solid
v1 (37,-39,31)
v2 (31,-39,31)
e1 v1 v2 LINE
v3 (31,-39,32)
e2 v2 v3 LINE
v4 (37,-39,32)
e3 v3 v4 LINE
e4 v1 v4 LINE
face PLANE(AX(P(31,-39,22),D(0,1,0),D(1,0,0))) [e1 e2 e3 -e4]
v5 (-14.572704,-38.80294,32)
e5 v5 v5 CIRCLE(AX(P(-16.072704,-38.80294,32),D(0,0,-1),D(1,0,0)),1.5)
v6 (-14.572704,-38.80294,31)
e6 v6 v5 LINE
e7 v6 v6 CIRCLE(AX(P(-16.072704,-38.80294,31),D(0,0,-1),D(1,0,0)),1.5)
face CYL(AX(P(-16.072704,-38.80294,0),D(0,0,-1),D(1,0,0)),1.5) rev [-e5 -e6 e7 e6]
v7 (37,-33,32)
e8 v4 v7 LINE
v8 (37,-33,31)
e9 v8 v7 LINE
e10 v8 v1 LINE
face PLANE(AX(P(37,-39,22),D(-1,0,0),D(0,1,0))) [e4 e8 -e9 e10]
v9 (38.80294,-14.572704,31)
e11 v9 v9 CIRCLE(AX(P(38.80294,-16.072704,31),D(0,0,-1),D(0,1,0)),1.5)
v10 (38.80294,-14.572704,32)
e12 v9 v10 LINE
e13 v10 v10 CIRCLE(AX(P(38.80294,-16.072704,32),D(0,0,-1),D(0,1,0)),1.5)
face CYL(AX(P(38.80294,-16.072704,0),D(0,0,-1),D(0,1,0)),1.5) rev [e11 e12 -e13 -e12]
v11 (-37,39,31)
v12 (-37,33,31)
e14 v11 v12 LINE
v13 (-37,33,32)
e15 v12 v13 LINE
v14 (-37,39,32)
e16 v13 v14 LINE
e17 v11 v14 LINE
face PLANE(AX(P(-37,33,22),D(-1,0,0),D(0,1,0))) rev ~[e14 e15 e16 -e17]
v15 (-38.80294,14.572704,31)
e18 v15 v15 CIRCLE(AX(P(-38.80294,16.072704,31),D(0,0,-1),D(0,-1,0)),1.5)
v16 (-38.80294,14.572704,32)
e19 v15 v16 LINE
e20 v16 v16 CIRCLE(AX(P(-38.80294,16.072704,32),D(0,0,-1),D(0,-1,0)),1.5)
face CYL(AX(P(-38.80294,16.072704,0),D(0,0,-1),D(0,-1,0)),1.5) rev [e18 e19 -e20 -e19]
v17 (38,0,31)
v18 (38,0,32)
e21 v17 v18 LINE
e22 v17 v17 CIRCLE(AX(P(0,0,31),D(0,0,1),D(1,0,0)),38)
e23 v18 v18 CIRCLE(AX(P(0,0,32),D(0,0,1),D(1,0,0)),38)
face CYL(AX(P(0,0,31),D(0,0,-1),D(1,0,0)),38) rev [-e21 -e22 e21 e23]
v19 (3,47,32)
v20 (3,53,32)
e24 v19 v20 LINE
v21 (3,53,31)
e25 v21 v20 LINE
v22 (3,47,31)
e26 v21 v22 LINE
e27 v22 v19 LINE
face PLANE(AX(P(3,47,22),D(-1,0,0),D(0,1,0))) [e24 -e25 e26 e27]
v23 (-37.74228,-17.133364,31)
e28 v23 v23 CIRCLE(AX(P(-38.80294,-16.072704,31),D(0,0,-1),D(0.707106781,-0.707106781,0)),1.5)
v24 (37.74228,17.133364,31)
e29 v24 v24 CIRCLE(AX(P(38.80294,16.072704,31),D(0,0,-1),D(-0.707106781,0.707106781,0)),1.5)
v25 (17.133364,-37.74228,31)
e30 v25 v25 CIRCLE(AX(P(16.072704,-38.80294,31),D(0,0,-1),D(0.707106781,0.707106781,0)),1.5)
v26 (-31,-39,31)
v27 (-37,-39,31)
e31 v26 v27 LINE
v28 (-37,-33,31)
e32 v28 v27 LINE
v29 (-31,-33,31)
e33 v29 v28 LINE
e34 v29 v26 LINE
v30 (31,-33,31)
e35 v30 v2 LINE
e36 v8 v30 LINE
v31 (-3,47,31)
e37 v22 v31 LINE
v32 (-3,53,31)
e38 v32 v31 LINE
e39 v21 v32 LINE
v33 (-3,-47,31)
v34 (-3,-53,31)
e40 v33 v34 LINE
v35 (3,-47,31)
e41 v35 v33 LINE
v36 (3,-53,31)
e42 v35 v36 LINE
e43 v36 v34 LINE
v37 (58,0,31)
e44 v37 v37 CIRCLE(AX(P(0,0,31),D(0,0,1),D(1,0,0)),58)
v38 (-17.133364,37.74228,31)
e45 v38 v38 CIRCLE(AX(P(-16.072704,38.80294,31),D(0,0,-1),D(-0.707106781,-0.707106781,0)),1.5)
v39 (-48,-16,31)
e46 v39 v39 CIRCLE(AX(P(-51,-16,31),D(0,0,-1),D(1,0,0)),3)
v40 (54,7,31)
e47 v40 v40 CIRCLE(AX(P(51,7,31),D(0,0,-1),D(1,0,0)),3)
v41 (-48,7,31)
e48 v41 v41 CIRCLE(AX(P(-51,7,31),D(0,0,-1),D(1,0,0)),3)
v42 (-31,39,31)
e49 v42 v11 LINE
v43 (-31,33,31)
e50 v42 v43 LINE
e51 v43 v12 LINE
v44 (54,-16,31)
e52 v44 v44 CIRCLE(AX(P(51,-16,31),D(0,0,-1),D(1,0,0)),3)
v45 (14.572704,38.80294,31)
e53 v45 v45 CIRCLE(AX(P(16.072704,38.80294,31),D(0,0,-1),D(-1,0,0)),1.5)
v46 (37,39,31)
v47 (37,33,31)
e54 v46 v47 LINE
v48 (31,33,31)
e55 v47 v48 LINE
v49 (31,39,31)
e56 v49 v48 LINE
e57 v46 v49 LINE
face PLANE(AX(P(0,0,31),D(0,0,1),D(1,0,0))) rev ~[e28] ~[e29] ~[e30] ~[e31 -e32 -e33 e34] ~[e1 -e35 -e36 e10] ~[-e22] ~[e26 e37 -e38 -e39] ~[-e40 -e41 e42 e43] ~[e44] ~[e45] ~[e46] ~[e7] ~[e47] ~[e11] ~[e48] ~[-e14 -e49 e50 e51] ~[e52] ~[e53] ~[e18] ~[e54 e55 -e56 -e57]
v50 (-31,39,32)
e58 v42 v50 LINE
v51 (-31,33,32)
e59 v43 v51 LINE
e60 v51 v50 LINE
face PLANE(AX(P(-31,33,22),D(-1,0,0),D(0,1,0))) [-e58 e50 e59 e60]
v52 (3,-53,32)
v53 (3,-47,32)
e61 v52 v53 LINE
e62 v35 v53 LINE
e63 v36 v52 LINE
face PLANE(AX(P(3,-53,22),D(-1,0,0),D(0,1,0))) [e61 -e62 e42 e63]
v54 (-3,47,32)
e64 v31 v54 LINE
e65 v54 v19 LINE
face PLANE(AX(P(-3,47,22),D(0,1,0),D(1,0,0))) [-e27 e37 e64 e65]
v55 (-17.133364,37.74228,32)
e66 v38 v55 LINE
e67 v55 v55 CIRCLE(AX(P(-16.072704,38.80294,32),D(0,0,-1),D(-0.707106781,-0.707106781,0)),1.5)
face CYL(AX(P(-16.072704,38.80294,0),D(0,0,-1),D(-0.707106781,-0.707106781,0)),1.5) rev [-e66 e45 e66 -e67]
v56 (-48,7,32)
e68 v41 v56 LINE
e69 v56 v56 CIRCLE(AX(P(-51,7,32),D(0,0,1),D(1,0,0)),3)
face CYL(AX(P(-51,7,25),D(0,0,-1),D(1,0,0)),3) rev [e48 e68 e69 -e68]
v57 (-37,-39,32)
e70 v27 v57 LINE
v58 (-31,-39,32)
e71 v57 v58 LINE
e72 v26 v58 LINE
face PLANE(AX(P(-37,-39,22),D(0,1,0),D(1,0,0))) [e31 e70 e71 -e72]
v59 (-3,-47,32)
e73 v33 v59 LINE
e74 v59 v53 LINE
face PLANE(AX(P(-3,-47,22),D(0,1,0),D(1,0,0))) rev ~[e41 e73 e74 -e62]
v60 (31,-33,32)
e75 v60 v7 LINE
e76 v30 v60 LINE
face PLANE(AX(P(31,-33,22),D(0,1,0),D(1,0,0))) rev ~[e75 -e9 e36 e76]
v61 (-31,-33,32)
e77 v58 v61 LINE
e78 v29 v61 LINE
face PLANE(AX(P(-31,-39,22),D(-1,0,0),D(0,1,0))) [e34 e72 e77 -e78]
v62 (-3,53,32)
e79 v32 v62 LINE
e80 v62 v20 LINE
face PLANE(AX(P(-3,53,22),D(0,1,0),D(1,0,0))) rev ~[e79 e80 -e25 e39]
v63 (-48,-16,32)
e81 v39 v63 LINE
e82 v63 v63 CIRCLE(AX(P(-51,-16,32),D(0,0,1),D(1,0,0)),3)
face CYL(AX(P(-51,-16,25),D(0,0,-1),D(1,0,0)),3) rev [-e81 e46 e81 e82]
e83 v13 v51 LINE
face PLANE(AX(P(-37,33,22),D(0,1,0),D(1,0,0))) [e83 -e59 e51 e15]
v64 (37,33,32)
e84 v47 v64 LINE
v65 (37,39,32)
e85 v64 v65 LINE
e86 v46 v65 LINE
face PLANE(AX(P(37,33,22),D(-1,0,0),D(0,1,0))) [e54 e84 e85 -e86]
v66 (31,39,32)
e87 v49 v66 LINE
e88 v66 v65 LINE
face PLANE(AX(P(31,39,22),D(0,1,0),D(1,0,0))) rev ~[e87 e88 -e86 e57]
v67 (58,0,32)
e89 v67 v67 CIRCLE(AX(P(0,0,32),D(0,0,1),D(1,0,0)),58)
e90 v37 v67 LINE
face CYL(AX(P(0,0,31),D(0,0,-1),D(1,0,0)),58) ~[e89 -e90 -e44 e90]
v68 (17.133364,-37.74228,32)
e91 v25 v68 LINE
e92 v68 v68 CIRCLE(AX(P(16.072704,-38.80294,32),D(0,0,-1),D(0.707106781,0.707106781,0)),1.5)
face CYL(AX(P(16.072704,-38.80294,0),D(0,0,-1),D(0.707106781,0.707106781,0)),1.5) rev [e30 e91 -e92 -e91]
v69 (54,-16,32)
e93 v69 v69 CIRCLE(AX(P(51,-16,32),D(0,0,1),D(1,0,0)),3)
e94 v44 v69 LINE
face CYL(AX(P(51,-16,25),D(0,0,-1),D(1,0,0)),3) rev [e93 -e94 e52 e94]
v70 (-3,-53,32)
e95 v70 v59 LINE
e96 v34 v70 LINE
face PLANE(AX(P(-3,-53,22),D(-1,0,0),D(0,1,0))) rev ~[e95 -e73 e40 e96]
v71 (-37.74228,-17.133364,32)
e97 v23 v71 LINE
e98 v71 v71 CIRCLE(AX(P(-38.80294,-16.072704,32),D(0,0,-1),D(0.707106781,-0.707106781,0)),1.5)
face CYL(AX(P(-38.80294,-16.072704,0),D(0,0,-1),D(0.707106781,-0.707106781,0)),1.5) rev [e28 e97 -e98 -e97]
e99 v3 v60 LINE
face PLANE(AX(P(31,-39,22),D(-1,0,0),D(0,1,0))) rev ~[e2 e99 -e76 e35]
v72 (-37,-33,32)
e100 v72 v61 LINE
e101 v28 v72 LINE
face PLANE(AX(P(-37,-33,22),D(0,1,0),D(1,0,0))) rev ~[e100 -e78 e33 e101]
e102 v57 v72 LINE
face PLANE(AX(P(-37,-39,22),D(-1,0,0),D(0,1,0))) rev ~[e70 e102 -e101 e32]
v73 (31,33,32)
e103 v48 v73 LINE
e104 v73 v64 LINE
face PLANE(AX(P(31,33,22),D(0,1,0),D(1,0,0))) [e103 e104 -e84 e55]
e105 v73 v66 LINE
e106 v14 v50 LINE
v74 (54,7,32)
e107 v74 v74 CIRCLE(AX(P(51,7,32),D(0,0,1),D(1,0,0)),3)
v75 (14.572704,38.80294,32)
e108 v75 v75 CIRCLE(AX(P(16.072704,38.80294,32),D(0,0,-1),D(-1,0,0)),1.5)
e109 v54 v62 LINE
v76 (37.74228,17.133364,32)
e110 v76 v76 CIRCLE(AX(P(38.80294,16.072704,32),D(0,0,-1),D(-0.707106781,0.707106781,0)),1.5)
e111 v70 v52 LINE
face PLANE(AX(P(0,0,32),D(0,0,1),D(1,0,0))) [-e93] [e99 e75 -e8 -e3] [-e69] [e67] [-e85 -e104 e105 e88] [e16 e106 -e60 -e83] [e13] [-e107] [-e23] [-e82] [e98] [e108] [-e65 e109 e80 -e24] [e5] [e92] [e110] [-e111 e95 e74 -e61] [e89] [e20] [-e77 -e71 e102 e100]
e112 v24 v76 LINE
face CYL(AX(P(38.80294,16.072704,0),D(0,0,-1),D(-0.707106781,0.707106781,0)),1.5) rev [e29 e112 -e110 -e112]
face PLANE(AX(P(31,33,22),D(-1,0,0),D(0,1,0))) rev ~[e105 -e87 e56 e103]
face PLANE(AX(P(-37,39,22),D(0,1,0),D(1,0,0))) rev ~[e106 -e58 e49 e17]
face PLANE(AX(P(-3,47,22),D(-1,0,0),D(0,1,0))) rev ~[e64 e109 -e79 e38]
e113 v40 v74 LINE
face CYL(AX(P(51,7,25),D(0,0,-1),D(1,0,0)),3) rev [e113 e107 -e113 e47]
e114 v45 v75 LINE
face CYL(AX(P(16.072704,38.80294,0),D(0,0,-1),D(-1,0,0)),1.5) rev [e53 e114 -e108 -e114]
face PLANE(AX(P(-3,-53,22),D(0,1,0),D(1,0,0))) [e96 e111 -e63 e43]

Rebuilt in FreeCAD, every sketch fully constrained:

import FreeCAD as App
import Part
import Sketcher
Q = App.Units.Quantity


def add_polygon(sketch, points):
    """Adds a closed chain of lines whose ends are joined by coincident constraints."""
    first, n = sketch.GeometryCount, len(points)
    for a, b in zip(points, points[1:] + points[:1]):
        sketch.addGeometry(Part.LineSegment(App.Vector(*a, 0), App.Vector(*b, 0)), False)
    for i in range(n):
        sketch.addConstraint(Sketcher.Constraint("Coincident", first + i, 2, first + (i + 1) % n, 1))

doc = App.newDocument("Part")
params = doc.addObject("Spreadsheet::Sheet", "Params")
for row, (alias, value) in enumerate([
    ("sketch1_diameter", "3 mm"),
    ("pad1_length", "100 mm"),
    ("sketch2_diameter", "3 mm"),
    ("pad2_length", "100 mm"),
    ("sketch3_diameter", "3 mm"),
    ("pad3_length", "100 mm"),
    ("sketch4_diameter", "3 mm"),
    ("pad4_length", "100 mm"),
    ("sketch5_diameter", "3 mm"),
    ("pad5_length", "100 mm"),
    ("sketch6_diameter", "3 mm"),
    ("pad6_length", "100 mm"),
    ("sketch7_diameter", "3 mm"),
    ("pad7_length", "100 mm"),
    ("sketch8_diameter", "3 mm"),
    ("pad8_length", "100 mm"),
    ("sketch9_width", "6 mm"),
    ("pad9_length", "10 mm"),
    ("sketch10_width", "6 mm"),
    ("pad10_length", "10 mm"),
    ("sketch11_width", "6 mm"),
    ("pad11_length", "10 mm"),
    ("sketch12_width", "6 mm"),
    ("pad12_length", "10 mm"),
    ("sketch13_width", "6 mm"),
    ("pad13_length", "10 mm"),
    ("sketch14_width", "6 mm"),
    ("pad14_length", "10 mm"),
    ("sketch15_diameter", "6 mm"),
    ("pad15_length", "7 mm"),
    ("sketch16_diameter", "6 mm"),
    ("pad16_length", "7 mm"),
    ("sketch17_diameter", "6 mm"),
    ("pad17_length", "7 mm"),
    ("sketch18_diameter", "6 mm"),
    ("pad18_length", "7 mm"),
    ("sketch19_diameter", "116 mm"),
    ("sketch19_diameter2", "76 mm"),
    ("pad19_length", "1 mm"),
], start=1):
    params.set(f"A{row}", alias)
    params.set(f"B{row}", "=" + value)
    params.setAlias(f"B{row}", alias)

body = doc.addObject("PartDesign::Body", "Body")

sketch1 = body.newObject("Sketcher::SketchObject", "Sketch")
sketch1.AttachmentSupport = (doc.getObject("XY_Plane"), [""])
sketch1.MapMode = "FlatFace"
sketch1.addGeometry(Part.Circle(App.Vector(38.8, -16.1, 0), App.Vector(0, 0, 1), 1.5), False)
sketch1.addConstraint([
    Sketcher.Constraint("Diameter", 0, Q("3 mm")),
    Sketcher.Constraint("DistanceX", -1, 1, 0, 3, Q("38.80294 mm")),
    Sketcher.Constraint("DistanceY", 0, 3, -1, 1, Q("16.072704 mm")),
])
sketch1.setExpression("Constraints[0]", "Params.sketch1_diameter")
pad1 = body.newObject("PartDesign::Pad", "Pad")
pad1.Profile = sketch1
pad1.setExpression("Length", "Params.pad1_length")
body2 = doc.addObject("PartDesign::Body", "Body001")

sketch2 = body2.newObject("Sketcher::SketchObject", "Sketch001")
sketch2.AttachmentSupport = (doc.getObject("XY_Plane001"), [""])
sketch2.MapMode = "FlatFace"
sketch2.addGeometry(Part.Circle(App.Vector(0, 0, 0), App.Vector(0, 0, 1), 1.5), False)
sketch2.addConstraint([
    Sketcher.Constraint("Coincident", 0, 3, -1, 1),
    Sketcher.Constraint("Diameter", 0, Q("3 mm")),
])
sketch2.setExpression("Constraints[1]", "Params.sketch2_diameter")
pad2 = body2.newObject("PartDesign::Pad", "Pad001")
pad2.Profile = sketch2
pad2.setExpression("Length", "Params.pad2_length")
body3 = doc.addObject("PartDesign::Body", "Body002")
doc.recompute()

body2.Placement = App.Placement(App.Vector(38.80294, 16.072704, 0), App.Rotation(App.Vector(0, 0, 1), 135))
boolean = body3.newObject("PartDesign::Boolean", "Boolean")
boolean.Type = "Fuse"
boolean.addObjects([body2])
body4 = doc.addObject("PartDesign::Body", "Body003")

sketch3 = body4.newObject("Sketcher::SketchObject", "Sketch002")
sketch3.AttachmentSupport = (doc.getObject("XY_Plane003"), [""])
sketch3.MapMode = "FlatFace"
sketch3.addGeometry(Part.Circle(App.Vector(16.1, 38.8, 0), App.Vector(0, 0, 1), 1.5), False)
sketch3.addConstraint([
    Sketcher.Constraint("Diameter", 0, Q("3 mm")),
    Sketcher.Constraint("DistanceY", -1, 1, 0, 3, Q("38.80294 mm")),
    Sketcher.Constraint("DistanceX", -1, 1, 0, 3, Q("16.072704 mm")),
])
sketch3.setExpression("Constraints[0]", "Params.sketch3_diameter")
pad3 = body4.newObject("PartDesign::Pad", "Pad002")
pad3.Profile = sketch3
pad3.setExpression("Length", "Params.pad3_length")
body5 = doc.addObject("PartDesign::Body", "Body004")

sketch4 = body5.newObject("Sketcher::SketchObject", "Sketch003")
sketch4.AttachmentSupport = (doc.getObject("XY_Plane004"), [""])
sketch4.MapMode = "FlatFace"
sketch4.addGeometry(Part.Circle(App.Vector(0, 0, 0), App.Vector(0, 0, 1), 1.5), False)
sketch4.addConstraint([
    Sketcher.Constraint("Coincident", 0, 3, -1, 1),
    Sketcher.Constraint("Diameter", 0, Q("3 mm")),
])
sketch4.setExpression("Constraints[1]", "Params.sketch4_diameter")
pad4 = body5.newObject("PartDesign::Pad", "Pad003")
pad4.Profile = sketch4
pad4.setExpression("Length", "Params.pad4_length")
body6 = doc.addObject("PartDesign::Body", "Body005")
doc.recompute()

body5.Placement = App.Placement(App.Vector(-16.072704, 38.80294, 0), App.Rotation(App.Vector(0, 0, 1), 225))
boolean2 = body6.newObject("PartDesign::Boolean", "Boolean001")
boolean2.Type = "Fuse"
boolean2.addObjects([body5])
body7 = doc.addObject("PartDesign::Body", "Body006")

sketch5 = body7.newObject("Sketcher::SketchObject", "Sketch004")
sketch5.AttachmentSupport = (doc.getObject("XY_Plane006"), [""])
sketch5.MapMode = "FlatFace"
sketch5.addGeometry(Part.Circle(App.Vector(-38.8, 16.1, 0), App.Vector(0, 0, 1), 1.5), False)
sketch5.addConstraint([
    Sketcher.Constraint("Diameter", 0, Q("3 mm")),
    Sketcher.Constraint("DistanceX", 0, 3, -1, 1, Q("38.80294 mm")),
    Sketcher.Constraint("DistanceY", -1, 1, 0, 3, Q("16.072704 mm")),
])
sketch5.setExpression("Constraints[0]", "Params.sketch5_diameter")
pad5 = body7.newObject("PartDesign::Pad", "Pad004")
pad5.Profile = sketch5
pad5.setExpression("Length", "Params.pad5_length")
body8 = doc.addObject("PartDesign::Body", "Body007")

sketch6 = body8.newObject("Sketcher::SketchObject", "Sketch005")
sketch6.AttachmentSupport = (doc.getObject("XY_Plane007"), [""])
sketch6.MapMode = "FlatFace"
sketch6.addGeometry(Part.Circle(App.Vector(0, 0, 0), App.Vector(0, 0, 1), 1.5), False)
sketch6.addConstraint([
    Sketcher.Constraint("Coincident", 0, 3, -1, 1),
    Sketcher.Constraint("Diameter", 0, Q("3 mm")),
])
sketch6.setExpression("Constraints[1]", "Params.sketch6_diameter")
pad6 = body8.newObject("PartDesign::Pad", "Pad005")
pad6.Profile = sketch6
pad6.setExpression("Length", "Params.pad6_length")
body9 = doc.addObject("PartDesign::Body", "Body008")
doc.recompute()

body8.Placement = App.Placement(App.Vector(-38.80294, -16.072704, 0), App.Rotation(App.Vector(0, 0, -1), 45))
boolean3 = body9.newObject("PartDesign::Boolean", "Boolean002")
boolean3.Type = "Fuse"
boolean3.addObjects([body8])
body10 = doc.addObject("PartDesign::Body", "Body009")

sketch7 = body10.newObject("Sketcher::SketchObject", "Sketch006")
sketch7.AttachmentSupport = (doc.getObject("XY_Plane009"), [""])
sketch7.MapMode = "FlatFace"
sketch7.addGeometry(Part.Circle(App.Vector(-16.1, -38.8, 0), App.Vector(0, 0, 1), 1.5), False)
sketch7.addConstraint([
    Sketcher.Constraint("Diameter", 0, Q("3 mm")),
    Sketcher.Constraint("DistanceY", 0, 3, -1, 1, Q("38.80294 mm")),
    Sketcher.Constraint("DistanceX", 0, 3, -1, 1, Q("16.072704 mm")),
])
sketch7.setExpression("Constraints[0]", "Params.sketch7_diameter")
pad7 = body10.newObject("PartDesign::Pad", "Pad006")
pad7.Profile = sketch7
pad7.setExpression("Length", "Params.pad7_length")
body11 = doc.addObject("PartDesign::Body", "Body010")

sketch8 = body11.newObject("Sketcher::SketchObject", "Sketch007")
sketch8.AttachmentSupport = (doc.getObject("XY_Plane010"), [""])
sketch8.MapMode = "FlatFace"
sketch8.addGeometry(Part.Circle(App.Vector(0, 0, 0), App.Vector(0, 0, 1), 1.5), False)
sketch8.addConstraint([
    Sketcher.Constraint("Coincident", 0, 3, -1, 1),
    Sketcher.Constraint("Diameter", 0, Q("3 mm")),
])
sketch8.setExpression("Constraints[1]", "Params.sketch8_diameter")
pad8 = body11.newObject("PartDesign::Pad", "Pad007")
pad8.Profile = sketch8
pad8.setExpression("Length", "Params.pad8_length")
body12 = doc.addObject("PartDesign::Body", "Body011")
body12.AllowCompound = True
doc.recompute()

body11.Placement = App.Placement(App.Vector(16.072704, -38.80294, 0), App.Rotation(App.Vector(0, 0, 1), 45))
boolean4 = body12.newObject("PartDesign::Boolean", "Boolean003")
boolean4.Type = "Fuse"
boolean4.addObjects([body11])
doc.recompute()

boolean5 = body12.newObject("PartDesign::Boolean", "Boolean004")
boolean5.Type = "Fuse"
boolean5.addObjects([body])
doc.recompute()

boolean6 = body12.newObject("PartDesign::Boolean", "Boolean005")
boolean6.Type = "Fuse"
boolean6.addObjects([body3])
doc.recompute()

boolean7 = body12.newObject("PartDesign::Boolean", "Boolean006")
boolean7.Type = "Fuse"
boolean7.addObjects([body4])
doc.recompute()

boolean8 = body12.newObject("PartDesign::Boolean", "Boolean007")
boolean8.Type = "Fuse"
boolean8.addObjects([body6])
doc.recompute()

boolean9 = body12.newObject("PartDesign::Boolean", "Boolean008")
boolean9.Type = "Fuse"
boolean9.addObjects([body7])
doc.recompute()

boolean10 = body12.newObject("PartDesign::Boolean", "Boolean009")
boolean10.Type = "Fuse"
boolean10.addObjects([body9])
doc.recompute()

boolean11 = body12.newObject("PartDesign::Boolean", "Boolean010")
boolean11.Type = "Fuse"
boolean11.addObjects([body10])
body13 = doc.addObject("PartDesign::Body", "Body012")

sketch9 = body13.newObject("Sketcher::SketchObject", "Sketch008")
sketch9.AttachmentSupport = (doc.getObject("XY_Plane012"), [""])
sketch9.MapMode = "FlatFace"
sketch9.AttachmentOffset = App.Placement(App.Vector(0, 0, 40), App.Rotation())
add_polygon(sketch9, [(-37, -33), (-37, -39), (-31, -39), (-31, -33)])
sketch9.addConstraint([
    Sketcher.Constraint("Vertical", 0),
    Sketcher.Constraint("Horizontal", 1),
    Sketcher.Constraint("Vertical", 2),
    Sketcher.Constraint("Horizontal", 3),
    Sketcher.Constraint("Equal", 3, 0),
    Sketcher.Constraint("DistanceX", 1, 1, 1, 2, Q("6 mm")),
    Sketcher.Constraint("DistanceX", 0, 2, -1, 1, Q("37 mm")),
    Sketcher.Constraint("DistanceY", 0, 2, -1, 1, Q("39 mm")),
])
sketch9.setExpression("Constraints[9]", "Params.sketch9_width")
pad9 = body13.newObject("PartDesign::Pad", "Pad008")
pad9.Profile = sketch9
pad9.setExpression("Length", "Params.pad9_length")
body14 = doc.addObject("PartDesign::Body", "Body013")

sketch10 = body14.newObject("Sketcher::SketchObject", "Sketch009")
sketch10.AttachmentSupport = (doc.getObject("XY_Plane013"), [""])
sketch10.MapMode = "FlatFace"
sketch10.AttachmentOffset = App.Placement(App.Vector(0, 0, 40), App.Rotation())
add_polygon(sketch10, [(-3, -47), (-3, -53), (3, -53), (3, -47)])
sketch10.addConstraint([
    Sketcher.Constraint("Vertical", 0),
    Sketcher.Constraint("Horizontal", 1),
    Sketcher.Constraint("Vertical", 2),
    Sketcher.Constraint("Horizontal", 3),
    Sketcher.Constraint("Equal", 3, 0),
    Sketcher.Constraint("DistanceX", 1, 1, 1, 2, Q("6 mm")),
    Sketcher.Constraint("DistanceX", 0, 2, -1, 1, Q("3 mm")),
    Sketcher.Constraint("DistanceY", 0, 2, -1, 1, Q("53 mm")),
])
sketch10.setExpression("Constraints[9]", "Params.sketch10_width")
pad10 = body14.newObject("PartDesign::Pad", "Pad009")
pad10.Profile = sketch10
pad10.setExpression("Length", "Params.pad10_length")
body15 = doc.addObject("PartDesign::Body", "Body014")

sketch11 = body15.newObject("Sketcher::SketchObject", "Sketch010")
sketch11.AttachmentSupport = (doc.getObject("XY_Plane014"), [""])
sketch11.MapMode = "FlatFace"
sketch11.AttachmentOffset = App.Placement(App.Vector(0, 0, 40), App.Rotation())
add_polygon(sketch11, [(31, 39), (31, 33), (37, 33), (37, 39)])
sketch11.addConstraint([
    Sketcher.Constraint("Vertical", 0),
    Sketcher.Constraint("Horizontal", 1),
    Sketcher.Constraint("Vertical", 2),
    Sketcher.Constraint("Horizontal", 3),
    Sketcher.Constraint("Equal", 3, 0),
    Sketcher.Constraint("DistanceX", 1, 1, 1, 2, Q("6 mm")),
    Sketcher.Constraint("DistanceX", -1, 1, 0, 2, Q("31 mm")),
    Sketcher.Constraint("DistanceY", -1, 1, 0, 2, Q("33 mm")),
])
sketch11.setExpression("Constraints[9]", "Params.sketch11_width")
pad11 = body15.newObject("PartDesign::Pad", "Pad010")
pad11.Profile = sketch11
pad11.setExpression("Length", "Params.pad11_length")
body16 = doc.addObject("PartDesign::Body", "Body015")

sketch12 = body16.newObject("Sketcher::SketchObject", "Sketch011")
sketch12.AttachmentSupport = (doc.getObject("XY_Plane015"), [""])
sketch12.MapMode = "FlatFace"
sketch12.AttachmentOffset = App.Placement(App.Vector(0, 0, 40), App.Rotation())
add_polygon(sketch12, [(-37, 39), (-37, 33), (-31, 33), (-31, 39)])
sketch12.addConstraint([
    Sketcher.Constraint("Vertical", 0),
    Sketcher.Constraint("Horizontal", 1),
    Sketcher.Constraint("Vertical", 2),
    Sketcher.Constraint("Horizontal", 3),
    Sketcher.Constraint("Equal", 3, 0),
    Sketcher.Constraint("DistanceX", 1, 1, 1, 2, Q("6 mm")),
    Sketcher.Constraint("DistanceX", 0, 2, -1, 1, Q("37 mm")),
    Sketcher.Constraint("DistanceY", -1, 1, 0, 2, Q("33 mm")),
])
sketch12.setExpression("Constraints[9]", "Params.sketch12_width")
pad12 = body16.newObject("PartDesign::Pad", "Pad011")
pad12.Profile = sketch12
pad12.setExpression("Length", "Params.pad12_length")
body17 = doc.addObject("PartDesign::Body", "Body016")

sketch13 = body17.newObject("Sketcher::SketchObject", "Sketch012")
sketch13.AttachmentSupport = (doc.getObject("XY_Plane016"), [""])
sketch13.MapMode = "FlatFace"
sketch13.AttachmentOffset = App.Placement(App.Vector(0, 0, 40), App.Rotation())
add_polygon(sketch13, [(31, -33), (31, -39), (37, -39), (37, -33)])
sketch13.addConstraint([
    Sketcher.Constraint("Vertical", 0),
    Sketcher.Constraint("Horizontal", 1),
    Sketcher.Constraint("Vertical", 2),
    Sketcher.Constraint("Horizontal", 3),
    Sketcher.Constraint("Equal", 3, 0),
    Sketcher.Constraint("DistanceX", 1, 1, 1, 2, Q("6 mm")),
    Sketcher.Constraint("DistanceX", -1, 1, 0, 2, Q("31 mm")),
    Sketcher.Constraint("DistanceY", 0, 2, -1, 1, Q("39 mm")),
])
sketch13.setExpression("Constraints[9]", "Params.sketch13_width")
pad13 = body17.newObject("PartDesign::Pad", "Pad012")
pad13.Profile = sketch13
pad13.setExpression("Length", "Params.pad13_length")
body18 = doc.addObject("PartDesign::Body", "Body017")
body18.AllowCompound = True

sketch14 = body18.newObject("Sketcher::SketchObject", "Sketch013")
sketch14.AttachmentSupport = (doc.getObject("XY_Plane017"), [""])
sketch14.MapMode = "FlatFace"
sketch14.AttachmentOffset = App.Placement(App.Vector(0, 0, 40), App.Rotation())
add_polygon(sketch14, [(-3, 53), (-3, 47), (3, 47), (3, 53)])
sketch14.addConstraint([
    Sketcher.Constraint("Vertical", 0),
    Sketcher.Constraint("Horizontal", 1),
    Sketcher.Constraint("Vertical", 2),
    Sketcher.Constraint("Horizontal", 3),
    Sketcher.Constraint("Equal", 3, 0),
    Sketcher.Constraint("DistanceX", 1, 1, 1, 2, Q("6 mm")),
    Sketcher.Constraint("DistanceX", 0, 2, -1, 1, Q("3 mm")),
    Sketcher.Constraint("DistanceY", -1, 1, 0, 2, Q("47 mm")),
])
sketch14.setExpression("Constraints[9]", "Params.sketch14_width")
pad14 = body18.newObject("PartDesign::Pad", "Pad013")
pad14.Profile = sketch14
pad14.setExpression("Length", "Params.pad14_length")
doc.recompute()

boolean12 = body18.newObject("PartDesign::Boolean", "Boolean011")
boolean12.Type = "Fuse"
boolean12.addObjects([body13])
doc.recompute()

boolean13 = body18.newObject("PartDesign::Boolean", "Boolean012")
boolean13.Type = "Fuse"
boolean13.addObjects([body14])
doc.recompute()

boolean14 = body18.newObject("PartDesign::Boolean", "Boolean013")
boolean14.Type = "Fuse"
boolean14.addObjects([body15])
doc.recompute()

boolean15 = body18.newObject("PartDesign::Boolean", "Boolean014")
boolean15.Type = "Fuse"
boolean15.addObjects([body16])
doc.recompute()

boolean16 = body18.newObject("PartDesign::Boolean", "Boolean015")
boolean16.Type = "Fuse"
boolean16.addObjects([body17])
body19 = doc.addObject("PartDesign::Body", "Body018")
body19.AllowCompound = True
doc.recompute()

body18.Placement = App.Placement(App.Vector(0, 0, -18), App.Rotation(App.Vector(0, 0, 1), 0))
boolean17 = body19.newObject("PartDesign::Boolean", "Boolean016")
boolean17.Type = "Fuse"
boolean17.addObjects([body18])
body20 = doc.addObject("PartDesign::Body", "Body019")

sketch15 = body20.newObject("Sketcher::SketchObject", "Sketch014")
sketch15.AttachmentSupport = (doc.getObject("XY_Plane019"), [""])
sketch15.MapMode = "FlatFace"
sketch15.AttachmentOffset = App.Placement(App.Vector(0, 0, 50), App.Rotation())
sketch15.addGeometry(Part.Circle(App.Vector(51, -16, 0), App.Vector(0, 0, 1), 3), False)
sketch15.addConstraint([
    Sketcher.Constraint("Diameter", 0, Q("6 mm")),
    Sketcher.Constraint("DistanceX", -1, 1, 0, 3, Q("51 mm")),
    Sketcher.Constraint("DistanceY", 0, 3, -1, 1, Q("16 mm")),
])
sketch15.setExpression("Constraints[0]", "Params.sketch15_diameter")
pad15 = body20.newObject("PartDesign::Pad", "Pad014")
pad15.Profile = sketch15
pad15.setExpression("Length", "Params.pad15_length")
body21 = doc.addObject("PartDesign::Body", "Body020")

sketch16 = body21.newObject("Sketcher::SketchObject", "Sketch015")
sketch16.AttachmentSupport = (doc.getObject("XY_Plane020"), [""])
sketch16.MapMode = "FlatFace"
sketch16.AttachmentOffset = App.Placement(App.Vector(0, 0, 50), App.Rotation())
sketch16.addGeometry(Part.Circle(App.Vector(51, 7, 0), App.Vector(0, 0, 1), 3), False)
sketch16.addConstraint([
    Sketcher.Constraint("Diameter", 0, Q("6 mm")),
    Sketcher.Constraint("DistanceX", -1, 1, 0, 3, Q("51 mm")),
    Sketcher.Constraint("DistanceY", -1, 1, 0, 3, Q("7 mm")),
])
sketch16.setExpression("Constraints[0]", "Params.sketch16_diameter")
pad16 = body21.newObject("PartDesign::Pad", "Pad015")
pad16.Profile = sketch16
pad16.setExpression("Length", "Params.pad16_length")
body22 = doc.addObject("PartDesign::Body", "Body021")

sketch17 = body22.newObject("Sketcher::SketchObject", "Sketch016")
sketch17.AttachmentSupport = (doc.getObject("XY_Plane021"), [""])
sketch17.MapMode = "FlatFace"
sketch17.AttachmentOffset = App.Placement(App.Vector(0, 0, 50), App.Rotation())
sketch17.addGeometry(Part.Circle(App.Vector(-51, 7, 0), App.Vector(0, 0, 1), 3), False)
sketch17.addConstraint([
    Sketcher.Constraint("Diameter", 0, Q("6 mm")),
    Sketcher.Constraint("DistanceX", 0, 3, -1, 1, Q("51 mm")),
    Sketcher.Constraint("DistanceY", -1, 1, 0, 3, Q("7 mm")),
])
sketch17.setExpression("Constraints[0]", "Params.sketch17_diameter")
pad17 = body22.newObject("PartDesign::Pad", "Pad016")
pad17.Profile = sketch17
pad17.setExpression("Length", "Params.pad17_length")
body23 = doc.addObject("PartDesign::Body", "Body022")
body23.AllowCompound = True

sketch18 = body23.newObject("Sketcher::SketchObject", "Sketch017")
sketch18.AttachmentSupport = (doc.getObject("XY_Plane022"), [""])
sketch18.MapMode = "FlatFace"
sketch18.AttachmentOffset = App.Placement(App.Vector(0, 0, 50), App.Rotation())
sketch18.addGeometry(Part.Circle(App.Vector(-51, -16, 0), App.Vector(0, 0, 1), 3), False)
sketch18.addConstraint([
    Sketcher.Constraint("Diameter", 0, Q("6 mm")),
    Sketcher.Constraint("DistanceX", 0, 3, -1, 1, Q("51 mm")),
    Sketcher.Constraint("DistanceY", 0, 3, -1, 1, Q("16 mm")),
])
sketch18.setExpression("Constraints[0]", "Params.sketch18_diameter")
pad18 = body23.newObject("PartDesign::Pad", "Pad017")
pad18.Profile = sketch18
pad18.setExpression("Length", "Params.pad18_length")
doc.recompute()

boolean18 = body23.newObject("PartDesign::Boolean", "Boolean017")
boolean18.Type = "Fuse"
boolean18.addObjects([body20])
doc.recompute()

boolean19 = body23.newObject("PartDesign::Boolean", "Boolean018")
boolean19.Type = "Fuse"
boolean19.addObjects([body21])
doc.recompute()

boolean20 = body23.newObject("PartDesign::Boolean", "Boolean019")
boolean20.Type = "Fuse"
boolean20.addObjects([body22])
body24 = doc.addObject("PartDesign::Body", "Body023")
body24.AllowCompound = True
doc.recompute()

body23.Placement = App.Placement(App.Vector(0, 0, -25), App.Rotation(App.Vector(0, 0, 1), 0))
boolean21 = body24.newObject("PartDesign::Boolean", "Boolean020")
boolean21.Type = "Fuse"
boolean21.addObjects([body23])
body25 = doc.addObject("PartDesign::Body", "Body024")

sketch19 = body25.newObject("Sketcher::SketchObject", "Sketch018")
sketch19.AttachmentSupport = (doc.getObject("XY_Plane024"), [""])
sketch19.MapMode = "FlatFace"
sketch19.AttachmentOffset = App.Placement(App.Vector(0, 0, 31), App.Rotation())
sketch19.addGeometry([
    Part.Circle(App.Vector(0, 0, 0), App.Vector(0, 0, 1), 58),
    Part.Circle(App.Vector(0, 0, 0), App.Vector(0, 0, 1), 38),
], False)
sketch19.addConstraint([
    Sketcher.Constraint("Coincident", 0, 3, -1, 1),
    Sketcher.Constraint("Coincident", 1, 3, -1, 1),
    Sketcher.Constraint("Diameter", 0, Q("116 mm")),
    Sketcher.Constraint("Diameter", 1, Q("76 mm")),
])
sketch19.setExpression("Constraints[2]", "Params.sketch19_diameter")
sketch19.setExpression("Constraints[3]", "Params.sketch19_diameter2")
pad19 = body25.newObject("PartDesign::Pad", "Pad018")
pad19.Profile = sketch19
pad19.setExpression("Length", "Params.pad19_length")
doc.recompute()

boolean22 = body25.newObject("PartDesign::Boolean", "Boolean021")
boolean22.Type = "Cut"
boolean22.addObjects([body24])
doc.recompute()

boolean23 = body25.newObject("PartDesign::Boolean", "Boolean022")
boolean23.Type = "Cut"
boolean23.addObjects([body19])
doc.recompute()

boolean24 = body25.newObject("PartDesign::Boolean", "Boolean023")
boolean24.Type = "Cut"
boolean24.addObjects([body12])

doc.recompute()
